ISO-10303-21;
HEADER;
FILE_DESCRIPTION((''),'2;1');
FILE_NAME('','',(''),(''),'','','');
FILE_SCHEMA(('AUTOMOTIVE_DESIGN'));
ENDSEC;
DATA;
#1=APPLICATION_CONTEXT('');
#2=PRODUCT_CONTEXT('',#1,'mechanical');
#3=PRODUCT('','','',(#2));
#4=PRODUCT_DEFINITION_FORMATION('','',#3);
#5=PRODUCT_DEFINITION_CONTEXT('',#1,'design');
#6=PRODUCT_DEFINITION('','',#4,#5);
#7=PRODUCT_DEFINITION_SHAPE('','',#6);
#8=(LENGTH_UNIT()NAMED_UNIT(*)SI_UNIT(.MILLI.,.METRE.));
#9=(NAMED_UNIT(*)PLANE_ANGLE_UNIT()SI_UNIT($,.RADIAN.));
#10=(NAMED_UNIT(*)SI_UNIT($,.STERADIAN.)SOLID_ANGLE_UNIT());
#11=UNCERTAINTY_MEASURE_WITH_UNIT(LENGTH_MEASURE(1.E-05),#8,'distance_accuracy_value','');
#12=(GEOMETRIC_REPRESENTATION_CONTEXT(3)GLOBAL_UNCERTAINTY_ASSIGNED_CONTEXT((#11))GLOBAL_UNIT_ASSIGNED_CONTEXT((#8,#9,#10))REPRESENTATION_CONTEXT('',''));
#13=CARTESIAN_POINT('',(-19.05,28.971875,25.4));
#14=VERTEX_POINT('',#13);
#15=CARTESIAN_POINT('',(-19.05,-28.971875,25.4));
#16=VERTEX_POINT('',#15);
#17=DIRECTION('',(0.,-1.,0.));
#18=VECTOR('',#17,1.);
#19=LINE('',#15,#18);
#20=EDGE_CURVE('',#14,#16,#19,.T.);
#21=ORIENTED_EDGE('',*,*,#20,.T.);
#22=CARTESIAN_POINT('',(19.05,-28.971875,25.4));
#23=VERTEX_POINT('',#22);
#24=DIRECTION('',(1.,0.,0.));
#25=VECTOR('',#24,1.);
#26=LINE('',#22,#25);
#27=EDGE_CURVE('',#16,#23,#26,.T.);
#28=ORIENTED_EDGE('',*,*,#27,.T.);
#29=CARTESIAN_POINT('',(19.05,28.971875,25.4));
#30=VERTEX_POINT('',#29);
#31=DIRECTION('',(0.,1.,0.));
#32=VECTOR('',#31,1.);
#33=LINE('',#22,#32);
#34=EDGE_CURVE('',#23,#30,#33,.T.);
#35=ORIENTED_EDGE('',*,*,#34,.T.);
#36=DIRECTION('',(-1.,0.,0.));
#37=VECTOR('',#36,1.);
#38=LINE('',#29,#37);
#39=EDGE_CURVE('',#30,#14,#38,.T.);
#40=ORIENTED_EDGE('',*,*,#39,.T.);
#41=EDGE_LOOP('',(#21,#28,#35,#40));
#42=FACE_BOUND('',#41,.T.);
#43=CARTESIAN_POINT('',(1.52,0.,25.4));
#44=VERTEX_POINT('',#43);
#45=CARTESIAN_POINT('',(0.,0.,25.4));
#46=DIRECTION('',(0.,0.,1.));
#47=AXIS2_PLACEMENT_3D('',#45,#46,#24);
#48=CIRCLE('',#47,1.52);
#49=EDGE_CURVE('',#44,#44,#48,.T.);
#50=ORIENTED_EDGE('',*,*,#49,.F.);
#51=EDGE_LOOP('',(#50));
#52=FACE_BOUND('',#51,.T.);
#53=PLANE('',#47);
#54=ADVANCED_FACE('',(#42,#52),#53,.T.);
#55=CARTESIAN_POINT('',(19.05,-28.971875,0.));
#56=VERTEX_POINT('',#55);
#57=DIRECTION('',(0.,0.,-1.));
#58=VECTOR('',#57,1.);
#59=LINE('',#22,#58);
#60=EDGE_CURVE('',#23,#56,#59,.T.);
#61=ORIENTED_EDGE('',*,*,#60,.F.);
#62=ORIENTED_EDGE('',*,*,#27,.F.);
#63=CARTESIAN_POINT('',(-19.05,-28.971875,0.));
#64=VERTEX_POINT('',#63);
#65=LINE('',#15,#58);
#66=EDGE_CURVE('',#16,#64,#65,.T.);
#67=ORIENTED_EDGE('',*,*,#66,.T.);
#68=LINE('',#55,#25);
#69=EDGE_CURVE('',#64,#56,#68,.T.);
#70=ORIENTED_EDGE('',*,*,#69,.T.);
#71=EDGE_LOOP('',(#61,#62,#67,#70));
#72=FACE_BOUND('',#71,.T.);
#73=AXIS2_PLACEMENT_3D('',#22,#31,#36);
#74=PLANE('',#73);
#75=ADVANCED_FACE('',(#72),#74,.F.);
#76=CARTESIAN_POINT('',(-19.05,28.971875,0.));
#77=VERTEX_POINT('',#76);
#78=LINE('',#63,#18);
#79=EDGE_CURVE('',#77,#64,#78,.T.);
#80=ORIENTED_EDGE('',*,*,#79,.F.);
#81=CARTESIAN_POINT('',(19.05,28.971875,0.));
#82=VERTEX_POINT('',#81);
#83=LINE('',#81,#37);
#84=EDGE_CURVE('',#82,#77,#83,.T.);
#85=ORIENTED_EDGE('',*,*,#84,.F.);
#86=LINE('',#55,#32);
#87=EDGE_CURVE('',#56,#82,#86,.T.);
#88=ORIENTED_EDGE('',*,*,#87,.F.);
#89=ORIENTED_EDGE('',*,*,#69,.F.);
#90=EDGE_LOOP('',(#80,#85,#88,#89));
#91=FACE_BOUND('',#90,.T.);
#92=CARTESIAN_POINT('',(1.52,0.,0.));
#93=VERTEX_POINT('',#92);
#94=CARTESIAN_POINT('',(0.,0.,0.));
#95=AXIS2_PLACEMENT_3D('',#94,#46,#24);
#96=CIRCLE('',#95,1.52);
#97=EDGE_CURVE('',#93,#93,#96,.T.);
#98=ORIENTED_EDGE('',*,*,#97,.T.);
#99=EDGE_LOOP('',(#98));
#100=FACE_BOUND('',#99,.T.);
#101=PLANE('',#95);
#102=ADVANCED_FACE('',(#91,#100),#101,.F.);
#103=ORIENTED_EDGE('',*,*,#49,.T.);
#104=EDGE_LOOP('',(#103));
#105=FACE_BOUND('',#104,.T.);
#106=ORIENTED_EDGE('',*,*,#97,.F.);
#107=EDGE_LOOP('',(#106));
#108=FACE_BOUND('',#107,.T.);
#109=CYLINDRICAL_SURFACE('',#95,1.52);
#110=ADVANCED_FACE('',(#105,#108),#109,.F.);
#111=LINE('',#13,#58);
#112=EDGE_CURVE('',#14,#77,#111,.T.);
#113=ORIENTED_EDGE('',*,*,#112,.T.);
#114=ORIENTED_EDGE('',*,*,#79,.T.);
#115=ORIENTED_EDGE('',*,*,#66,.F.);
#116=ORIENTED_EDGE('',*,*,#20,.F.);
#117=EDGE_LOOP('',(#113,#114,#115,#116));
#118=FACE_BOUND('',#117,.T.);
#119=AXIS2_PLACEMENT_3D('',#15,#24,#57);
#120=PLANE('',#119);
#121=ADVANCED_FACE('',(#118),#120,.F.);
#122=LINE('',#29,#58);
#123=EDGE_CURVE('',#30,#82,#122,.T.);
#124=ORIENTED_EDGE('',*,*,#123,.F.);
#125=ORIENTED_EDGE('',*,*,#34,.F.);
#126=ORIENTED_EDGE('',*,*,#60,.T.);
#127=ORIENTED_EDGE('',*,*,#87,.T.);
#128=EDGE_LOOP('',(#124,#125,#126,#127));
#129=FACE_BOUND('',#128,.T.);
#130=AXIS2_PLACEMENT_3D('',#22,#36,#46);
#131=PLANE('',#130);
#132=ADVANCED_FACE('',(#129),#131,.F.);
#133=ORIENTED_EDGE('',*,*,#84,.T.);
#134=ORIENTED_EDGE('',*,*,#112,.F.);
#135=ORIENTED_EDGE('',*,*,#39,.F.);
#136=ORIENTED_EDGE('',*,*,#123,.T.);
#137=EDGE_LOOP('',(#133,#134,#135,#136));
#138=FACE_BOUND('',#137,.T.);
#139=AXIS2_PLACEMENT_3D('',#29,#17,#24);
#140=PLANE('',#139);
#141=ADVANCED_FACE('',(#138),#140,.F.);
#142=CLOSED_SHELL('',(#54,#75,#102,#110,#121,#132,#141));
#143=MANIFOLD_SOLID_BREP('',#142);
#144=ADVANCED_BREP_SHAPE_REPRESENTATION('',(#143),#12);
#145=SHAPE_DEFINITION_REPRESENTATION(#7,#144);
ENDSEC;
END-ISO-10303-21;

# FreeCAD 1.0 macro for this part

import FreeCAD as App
import Part
import Sketcher
from FreeCAD import Vector
Q = App.Units.Quantity

doc = App.newDocument("Part")
body = doc.addObject("PartDesign::Body", "Body")

# Sketch on XY plane
sketch1 = body.newObject("Sketcher::SketchObject", "Sketch")
sketch1.AttachmentSupport = (doc.getObject("XY_Plane"), [""])
sketch1.MapMode = "FlatFace"
sketch1.addGeometry([
    Part.LineSegment(Vector(-19, 29, 0), Vector(-19, -29, 0)),
    Part.LineSegment(Vector(-19, -29, 0), Vector(19, -29, 0)),
    Part.LineSegment(Vector(19, -29, 0), Vector(19, 29, 0)),
    Part.LineSegment(Vector(19, 29, 0), Vector(-19, 29, 0)),
], False)
sketch1.addConstraint([
    Sketcher.Constraint("Coincident", 0, 2, 1, 1),
    Sketcher.Constraint("Coincident", 1, 2, 2, 1),
    Sketcher.Constraint("Coincident", 2, 2, 3, 1),
    Sketcher.Constraint("Coincident", 3, 2, 0, 1),
    Sketcher.Constraint("Vertical", 0),
    Sketcher.Constraint("Horizontal", 1),
    Sketcher.Constraint("Vertical", 2),
    Sketcher.Constraint("Horizontal", 3),
    Sketcher.Constraint("Symmetric", 0, 2, 2, 2, -1, 1),
    Sketcher.Constraint("DistanceX", 1, 1, 1, 2, Q("1.5 in")),
    Sketcher.Constraint("DistanceY", 0, 2, 0, 1, Q("2.28125 in")),
])
pad1 = body.newObject("PartDesign::Pad", "Pad")
pad1.Profile = sketch1
pad1.Length = Q("1 in")

# Sketch on XY plane
sketch2 = body.newObject("Sketcher::SketchObject", "Sketch001")
sketch2.AttachmentSupport = (doc.getObject("XY_Plane"), [""])
sketch2.MapMode = "FlatFace"
sketch2.AttachmentOffset = App.Placement(Vector(0, 0, 1 * 25.4), App.Rotation())
sketch2.addGeometry(Part.Circle(Vector(0, 0, 0), Vector(0, 0, 1), 1.5), False)
sketch2.addConstraint([
    Sketcher.Constraint("Coincident", 0, 3, -1, 1),
    Sketcher.Constraint("Diameter", 0, Q("3.04 mm")),
])
pocket1 = body.newObject("PartDesign::Pocket", "Pocket")
pocket1.Profile = sketch2
pocket1.Type = "ThroughAll"

doc.recompute()
